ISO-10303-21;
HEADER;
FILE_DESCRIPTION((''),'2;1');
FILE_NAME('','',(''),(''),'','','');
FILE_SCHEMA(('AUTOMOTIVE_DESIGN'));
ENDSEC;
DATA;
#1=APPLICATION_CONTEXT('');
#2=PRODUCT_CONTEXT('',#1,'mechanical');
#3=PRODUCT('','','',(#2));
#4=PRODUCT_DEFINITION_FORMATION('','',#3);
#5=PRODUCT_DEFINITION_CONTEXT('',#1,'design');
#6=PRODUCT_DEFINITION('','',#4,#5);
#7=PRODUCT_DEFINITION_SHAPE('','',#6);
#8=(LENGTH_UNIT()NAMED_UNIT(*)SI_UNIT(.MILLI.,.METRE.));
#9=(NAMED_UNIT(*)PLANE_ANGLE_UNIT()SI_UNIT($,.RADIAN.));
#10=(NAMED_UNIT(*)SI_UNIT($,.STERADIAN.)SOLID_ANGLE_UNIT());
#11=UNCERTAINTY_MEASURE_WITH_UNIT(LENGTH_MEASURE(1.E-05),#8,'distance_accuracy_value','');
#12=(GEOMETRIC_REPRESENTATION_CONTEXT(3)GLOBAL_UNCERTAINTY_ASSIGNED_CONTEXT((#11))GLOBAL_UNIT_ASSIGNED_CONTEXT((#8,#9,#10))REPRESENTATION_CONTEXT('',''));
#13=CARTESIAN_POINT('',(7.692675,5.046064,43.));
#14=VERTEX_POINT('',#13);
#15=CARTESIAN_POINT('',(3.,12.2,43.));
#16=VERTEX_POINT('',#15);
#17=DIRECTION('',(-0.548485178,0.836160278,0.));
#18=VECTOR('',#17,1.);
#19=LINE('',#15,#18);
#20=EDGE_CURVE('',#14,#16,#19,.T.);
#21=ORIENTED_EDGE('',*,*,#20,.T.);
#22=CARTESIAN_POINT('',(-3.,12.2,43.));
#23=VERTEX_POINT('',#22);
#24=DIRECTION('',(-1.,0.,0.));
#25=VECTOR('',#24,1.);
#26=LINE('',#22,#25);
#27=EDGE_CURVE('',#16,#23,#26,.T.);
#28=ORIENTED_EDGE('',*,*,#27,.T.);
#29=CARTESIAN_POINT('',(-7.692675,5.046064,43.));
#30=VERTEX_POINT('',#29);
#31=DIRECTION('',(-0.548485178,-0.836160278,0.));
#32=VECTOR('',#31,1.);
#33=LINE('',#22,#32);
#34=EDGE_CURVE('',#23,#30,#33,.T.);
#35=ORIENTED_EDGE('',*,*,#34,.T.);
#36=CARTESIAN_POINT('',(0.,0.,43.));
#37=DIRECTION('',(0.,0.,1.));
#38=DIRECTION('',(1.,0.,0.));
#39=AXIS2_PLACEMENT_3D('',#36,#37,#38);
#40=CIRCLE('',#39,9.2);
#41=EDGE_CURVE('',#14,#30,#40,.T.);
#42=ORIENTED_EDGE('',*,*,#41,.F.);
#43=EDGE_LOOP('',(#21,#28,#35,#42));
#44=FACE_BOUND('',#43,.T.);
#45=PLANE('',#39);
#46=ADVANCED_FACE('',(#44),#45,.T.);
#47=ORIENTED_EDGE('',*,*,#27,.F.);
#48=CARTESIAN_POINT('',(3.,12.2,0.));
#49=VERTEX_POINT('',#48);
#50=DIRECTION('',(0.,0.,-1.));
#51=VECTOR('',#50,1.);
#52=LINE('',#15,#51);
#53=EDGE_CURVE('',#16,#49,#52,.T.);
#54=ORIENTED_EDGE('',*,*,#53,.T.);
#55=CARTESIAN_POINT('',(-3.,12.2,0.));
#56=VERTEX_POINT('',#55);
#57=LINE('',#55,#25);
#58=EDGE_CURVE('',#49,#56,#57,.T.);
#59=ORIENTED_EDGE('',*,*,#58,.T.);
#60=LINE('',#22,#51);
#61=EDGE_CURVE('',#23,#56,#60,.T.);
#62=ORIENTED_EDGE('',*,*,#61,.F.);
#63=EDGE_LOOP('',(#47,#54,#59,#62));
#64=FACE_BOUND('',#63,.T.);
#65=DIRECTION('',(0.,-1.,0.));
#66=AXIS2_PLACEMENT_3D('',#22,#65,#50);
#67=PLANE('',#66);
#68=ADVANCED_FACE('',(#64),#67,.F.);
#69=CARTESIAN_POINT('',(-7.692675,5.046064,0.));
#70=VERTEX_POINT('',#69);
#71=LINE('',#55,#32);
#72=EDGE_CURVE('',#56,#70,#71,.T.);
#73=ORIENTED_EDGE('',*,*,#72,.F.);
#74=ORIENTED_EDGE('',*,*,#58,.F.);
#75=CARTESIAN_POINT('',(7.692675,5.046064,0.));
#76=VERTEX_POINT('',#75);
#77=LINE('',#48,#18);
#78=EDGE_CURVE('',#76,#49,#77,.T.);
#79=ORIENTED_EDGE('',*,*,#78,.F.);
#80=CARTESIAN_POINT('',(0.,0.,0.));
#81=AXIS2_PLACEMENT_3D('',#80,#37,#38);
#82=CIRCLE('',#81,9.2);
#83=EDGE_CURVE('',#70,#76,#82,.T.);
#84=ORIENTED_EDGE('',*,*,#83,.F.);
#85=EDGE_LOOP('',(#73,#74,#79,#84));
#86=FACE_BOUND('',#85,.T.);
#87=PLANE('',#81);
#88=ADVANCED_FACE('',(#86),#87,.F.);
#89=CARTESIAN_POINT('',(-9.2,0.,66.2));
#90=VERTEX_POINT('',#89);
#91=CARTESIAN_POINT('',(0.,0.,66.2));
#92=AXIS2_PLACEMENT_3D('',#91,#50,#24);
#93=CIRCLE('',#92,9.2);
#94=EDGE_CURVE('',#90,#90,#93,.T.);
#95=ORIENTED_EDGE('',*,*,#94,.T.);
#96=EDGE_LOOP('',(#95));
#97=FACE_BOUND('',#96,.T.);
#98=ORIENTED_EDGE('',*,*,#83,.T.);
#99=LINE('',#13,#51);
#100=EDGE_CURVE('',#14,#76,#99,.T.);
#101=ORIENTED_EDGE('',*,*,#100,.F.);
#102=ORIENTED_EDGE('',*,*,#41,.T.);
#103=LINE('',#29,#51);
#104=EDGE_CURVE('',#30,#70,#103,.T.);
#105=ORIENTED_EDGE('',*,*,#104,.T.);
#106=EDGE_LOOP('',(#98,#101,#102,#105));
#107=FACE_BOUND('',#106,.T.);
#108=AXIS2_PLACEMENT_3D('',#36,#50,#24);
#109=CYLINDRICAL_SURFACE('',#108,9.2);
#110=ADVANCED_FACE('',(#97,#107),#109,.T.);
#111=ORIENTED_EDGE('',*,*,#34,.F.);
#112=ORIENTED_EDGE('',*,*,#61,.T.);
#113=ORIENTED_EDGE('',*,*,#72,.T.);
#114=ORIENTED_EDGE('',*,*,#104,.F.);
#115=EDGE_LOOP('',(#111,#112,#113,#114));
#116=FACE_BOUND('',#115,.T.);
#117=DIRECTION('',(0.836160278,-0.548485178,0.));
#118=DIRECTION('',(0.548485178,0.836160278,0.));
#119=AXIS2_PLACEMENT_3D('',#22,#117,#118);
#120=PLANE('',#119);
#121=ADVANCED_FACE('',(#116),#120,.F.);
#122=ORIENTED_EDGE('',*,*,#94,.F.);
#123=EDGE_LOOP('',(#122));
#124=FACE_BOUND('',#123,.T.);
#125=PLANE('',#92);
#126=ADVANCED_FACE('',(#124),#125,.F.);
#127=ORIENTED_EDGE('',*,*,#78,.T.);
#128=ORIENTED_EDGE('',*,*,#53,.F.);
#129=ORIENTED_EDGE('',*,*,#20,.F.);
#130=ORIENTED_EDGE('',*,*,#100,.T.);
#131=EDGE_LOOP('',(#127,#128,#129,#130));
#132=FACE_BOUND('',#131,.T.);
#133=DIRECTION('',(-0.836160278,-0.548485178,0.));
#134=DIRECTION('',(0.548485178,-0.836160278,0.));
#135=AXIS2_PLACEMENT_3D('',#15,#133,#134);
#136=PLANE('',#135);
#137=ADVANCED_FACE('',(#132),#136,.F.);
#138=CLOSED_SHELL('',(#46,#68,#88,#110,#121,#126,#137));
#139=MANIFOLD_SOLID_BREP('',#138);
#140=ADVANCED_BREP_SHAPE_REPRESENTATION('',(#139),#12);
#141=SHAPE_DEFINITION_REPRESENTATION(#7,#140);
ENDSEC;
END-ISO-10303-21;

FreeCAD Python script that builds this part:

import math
import FreeCAD as App
import Part
import Sketcher

doc = App.newDocument("Part")
body = doc.addObject("PartDesign::Body", "Body")

sketch1 = body.newObject("Sketcher::SketchObject", "Sketch")
sketch1.AttachmentSupport = (doc.getObject("XY_Plane"), [""])
sketch1.MapMode = "FlatFace"
sketch1.addGeometry([
    Part.LineSegment(App.Vector(3, 12, 0), App.Vector(-3, 12, 0)),
    Part.LineSegment(App.Vector(-3, 12, 0), App.Vector(-8, 5, 0)),
    Part.ArcOfCircle(Part.Circle(App.Vector(0, 0, 0), App.Vector(0, 0, 1), 9), math.radians(147), math.radians(393)),
    Part.LineSegment(App.Vector(8, 5, 0), App.Vector(3, 12, 0)),
], False)
sketch1.addConstraint([
    Sketcher.Constraint("Coincident", 0, 2, 1, 1),
    Sketcher.Constraint("Tangent", 1, 2, 2, 1),
    Sketcher.Constraint("Tangent", 2, 2, 3, 1),
    Sketcher.Constraint("Coincident", 3, 2, 0, 1),
    Sketcher.Constraint("Horizontal", 0),
    Sketcher.Constraint("Coincident", 2, 3, -1, 1),
    Sketcher.Constraint("Horizontal", 1, 2, 2, 2),
    Sketcher.Constraint("Radius", 2, 9.2),
    Sketcher.Constraint("DistanceX", 0, 2, 0, 1, 6.0),
    Sketcher.Constraint("DistanceY", -1, 1, 0, 2, 12.2),
])
pad1 = body.newObject("PartDesign::Pad", "Pad")
pad1.Profile = sketch1
pad1.Length = 43

sketch2 = body.newObject("Sketcher::SketchObject", "Sketch001")
sketch2.AttachmentSupport = (doc.getObject("XY_Plane"), [""])
sketch2.MapMode = "FlatFace"
sketch2.addGeometry(Part.Circle(App.Vector(0, 0, 0), App.Vector(0, 0, 1), 9), False)
sketch2.addConstraint([
    Sketcher.Constraint("Coincident", 0, 3, -1, 1),
    Sketcher.Constraint("Diameter", 0, 18.4),
])
pad2 = body.newObject("PartDesign::Pad", "Pad001")
pad2.Profile = sketch2
pad2.Length = 66.2

doc.recompute()
